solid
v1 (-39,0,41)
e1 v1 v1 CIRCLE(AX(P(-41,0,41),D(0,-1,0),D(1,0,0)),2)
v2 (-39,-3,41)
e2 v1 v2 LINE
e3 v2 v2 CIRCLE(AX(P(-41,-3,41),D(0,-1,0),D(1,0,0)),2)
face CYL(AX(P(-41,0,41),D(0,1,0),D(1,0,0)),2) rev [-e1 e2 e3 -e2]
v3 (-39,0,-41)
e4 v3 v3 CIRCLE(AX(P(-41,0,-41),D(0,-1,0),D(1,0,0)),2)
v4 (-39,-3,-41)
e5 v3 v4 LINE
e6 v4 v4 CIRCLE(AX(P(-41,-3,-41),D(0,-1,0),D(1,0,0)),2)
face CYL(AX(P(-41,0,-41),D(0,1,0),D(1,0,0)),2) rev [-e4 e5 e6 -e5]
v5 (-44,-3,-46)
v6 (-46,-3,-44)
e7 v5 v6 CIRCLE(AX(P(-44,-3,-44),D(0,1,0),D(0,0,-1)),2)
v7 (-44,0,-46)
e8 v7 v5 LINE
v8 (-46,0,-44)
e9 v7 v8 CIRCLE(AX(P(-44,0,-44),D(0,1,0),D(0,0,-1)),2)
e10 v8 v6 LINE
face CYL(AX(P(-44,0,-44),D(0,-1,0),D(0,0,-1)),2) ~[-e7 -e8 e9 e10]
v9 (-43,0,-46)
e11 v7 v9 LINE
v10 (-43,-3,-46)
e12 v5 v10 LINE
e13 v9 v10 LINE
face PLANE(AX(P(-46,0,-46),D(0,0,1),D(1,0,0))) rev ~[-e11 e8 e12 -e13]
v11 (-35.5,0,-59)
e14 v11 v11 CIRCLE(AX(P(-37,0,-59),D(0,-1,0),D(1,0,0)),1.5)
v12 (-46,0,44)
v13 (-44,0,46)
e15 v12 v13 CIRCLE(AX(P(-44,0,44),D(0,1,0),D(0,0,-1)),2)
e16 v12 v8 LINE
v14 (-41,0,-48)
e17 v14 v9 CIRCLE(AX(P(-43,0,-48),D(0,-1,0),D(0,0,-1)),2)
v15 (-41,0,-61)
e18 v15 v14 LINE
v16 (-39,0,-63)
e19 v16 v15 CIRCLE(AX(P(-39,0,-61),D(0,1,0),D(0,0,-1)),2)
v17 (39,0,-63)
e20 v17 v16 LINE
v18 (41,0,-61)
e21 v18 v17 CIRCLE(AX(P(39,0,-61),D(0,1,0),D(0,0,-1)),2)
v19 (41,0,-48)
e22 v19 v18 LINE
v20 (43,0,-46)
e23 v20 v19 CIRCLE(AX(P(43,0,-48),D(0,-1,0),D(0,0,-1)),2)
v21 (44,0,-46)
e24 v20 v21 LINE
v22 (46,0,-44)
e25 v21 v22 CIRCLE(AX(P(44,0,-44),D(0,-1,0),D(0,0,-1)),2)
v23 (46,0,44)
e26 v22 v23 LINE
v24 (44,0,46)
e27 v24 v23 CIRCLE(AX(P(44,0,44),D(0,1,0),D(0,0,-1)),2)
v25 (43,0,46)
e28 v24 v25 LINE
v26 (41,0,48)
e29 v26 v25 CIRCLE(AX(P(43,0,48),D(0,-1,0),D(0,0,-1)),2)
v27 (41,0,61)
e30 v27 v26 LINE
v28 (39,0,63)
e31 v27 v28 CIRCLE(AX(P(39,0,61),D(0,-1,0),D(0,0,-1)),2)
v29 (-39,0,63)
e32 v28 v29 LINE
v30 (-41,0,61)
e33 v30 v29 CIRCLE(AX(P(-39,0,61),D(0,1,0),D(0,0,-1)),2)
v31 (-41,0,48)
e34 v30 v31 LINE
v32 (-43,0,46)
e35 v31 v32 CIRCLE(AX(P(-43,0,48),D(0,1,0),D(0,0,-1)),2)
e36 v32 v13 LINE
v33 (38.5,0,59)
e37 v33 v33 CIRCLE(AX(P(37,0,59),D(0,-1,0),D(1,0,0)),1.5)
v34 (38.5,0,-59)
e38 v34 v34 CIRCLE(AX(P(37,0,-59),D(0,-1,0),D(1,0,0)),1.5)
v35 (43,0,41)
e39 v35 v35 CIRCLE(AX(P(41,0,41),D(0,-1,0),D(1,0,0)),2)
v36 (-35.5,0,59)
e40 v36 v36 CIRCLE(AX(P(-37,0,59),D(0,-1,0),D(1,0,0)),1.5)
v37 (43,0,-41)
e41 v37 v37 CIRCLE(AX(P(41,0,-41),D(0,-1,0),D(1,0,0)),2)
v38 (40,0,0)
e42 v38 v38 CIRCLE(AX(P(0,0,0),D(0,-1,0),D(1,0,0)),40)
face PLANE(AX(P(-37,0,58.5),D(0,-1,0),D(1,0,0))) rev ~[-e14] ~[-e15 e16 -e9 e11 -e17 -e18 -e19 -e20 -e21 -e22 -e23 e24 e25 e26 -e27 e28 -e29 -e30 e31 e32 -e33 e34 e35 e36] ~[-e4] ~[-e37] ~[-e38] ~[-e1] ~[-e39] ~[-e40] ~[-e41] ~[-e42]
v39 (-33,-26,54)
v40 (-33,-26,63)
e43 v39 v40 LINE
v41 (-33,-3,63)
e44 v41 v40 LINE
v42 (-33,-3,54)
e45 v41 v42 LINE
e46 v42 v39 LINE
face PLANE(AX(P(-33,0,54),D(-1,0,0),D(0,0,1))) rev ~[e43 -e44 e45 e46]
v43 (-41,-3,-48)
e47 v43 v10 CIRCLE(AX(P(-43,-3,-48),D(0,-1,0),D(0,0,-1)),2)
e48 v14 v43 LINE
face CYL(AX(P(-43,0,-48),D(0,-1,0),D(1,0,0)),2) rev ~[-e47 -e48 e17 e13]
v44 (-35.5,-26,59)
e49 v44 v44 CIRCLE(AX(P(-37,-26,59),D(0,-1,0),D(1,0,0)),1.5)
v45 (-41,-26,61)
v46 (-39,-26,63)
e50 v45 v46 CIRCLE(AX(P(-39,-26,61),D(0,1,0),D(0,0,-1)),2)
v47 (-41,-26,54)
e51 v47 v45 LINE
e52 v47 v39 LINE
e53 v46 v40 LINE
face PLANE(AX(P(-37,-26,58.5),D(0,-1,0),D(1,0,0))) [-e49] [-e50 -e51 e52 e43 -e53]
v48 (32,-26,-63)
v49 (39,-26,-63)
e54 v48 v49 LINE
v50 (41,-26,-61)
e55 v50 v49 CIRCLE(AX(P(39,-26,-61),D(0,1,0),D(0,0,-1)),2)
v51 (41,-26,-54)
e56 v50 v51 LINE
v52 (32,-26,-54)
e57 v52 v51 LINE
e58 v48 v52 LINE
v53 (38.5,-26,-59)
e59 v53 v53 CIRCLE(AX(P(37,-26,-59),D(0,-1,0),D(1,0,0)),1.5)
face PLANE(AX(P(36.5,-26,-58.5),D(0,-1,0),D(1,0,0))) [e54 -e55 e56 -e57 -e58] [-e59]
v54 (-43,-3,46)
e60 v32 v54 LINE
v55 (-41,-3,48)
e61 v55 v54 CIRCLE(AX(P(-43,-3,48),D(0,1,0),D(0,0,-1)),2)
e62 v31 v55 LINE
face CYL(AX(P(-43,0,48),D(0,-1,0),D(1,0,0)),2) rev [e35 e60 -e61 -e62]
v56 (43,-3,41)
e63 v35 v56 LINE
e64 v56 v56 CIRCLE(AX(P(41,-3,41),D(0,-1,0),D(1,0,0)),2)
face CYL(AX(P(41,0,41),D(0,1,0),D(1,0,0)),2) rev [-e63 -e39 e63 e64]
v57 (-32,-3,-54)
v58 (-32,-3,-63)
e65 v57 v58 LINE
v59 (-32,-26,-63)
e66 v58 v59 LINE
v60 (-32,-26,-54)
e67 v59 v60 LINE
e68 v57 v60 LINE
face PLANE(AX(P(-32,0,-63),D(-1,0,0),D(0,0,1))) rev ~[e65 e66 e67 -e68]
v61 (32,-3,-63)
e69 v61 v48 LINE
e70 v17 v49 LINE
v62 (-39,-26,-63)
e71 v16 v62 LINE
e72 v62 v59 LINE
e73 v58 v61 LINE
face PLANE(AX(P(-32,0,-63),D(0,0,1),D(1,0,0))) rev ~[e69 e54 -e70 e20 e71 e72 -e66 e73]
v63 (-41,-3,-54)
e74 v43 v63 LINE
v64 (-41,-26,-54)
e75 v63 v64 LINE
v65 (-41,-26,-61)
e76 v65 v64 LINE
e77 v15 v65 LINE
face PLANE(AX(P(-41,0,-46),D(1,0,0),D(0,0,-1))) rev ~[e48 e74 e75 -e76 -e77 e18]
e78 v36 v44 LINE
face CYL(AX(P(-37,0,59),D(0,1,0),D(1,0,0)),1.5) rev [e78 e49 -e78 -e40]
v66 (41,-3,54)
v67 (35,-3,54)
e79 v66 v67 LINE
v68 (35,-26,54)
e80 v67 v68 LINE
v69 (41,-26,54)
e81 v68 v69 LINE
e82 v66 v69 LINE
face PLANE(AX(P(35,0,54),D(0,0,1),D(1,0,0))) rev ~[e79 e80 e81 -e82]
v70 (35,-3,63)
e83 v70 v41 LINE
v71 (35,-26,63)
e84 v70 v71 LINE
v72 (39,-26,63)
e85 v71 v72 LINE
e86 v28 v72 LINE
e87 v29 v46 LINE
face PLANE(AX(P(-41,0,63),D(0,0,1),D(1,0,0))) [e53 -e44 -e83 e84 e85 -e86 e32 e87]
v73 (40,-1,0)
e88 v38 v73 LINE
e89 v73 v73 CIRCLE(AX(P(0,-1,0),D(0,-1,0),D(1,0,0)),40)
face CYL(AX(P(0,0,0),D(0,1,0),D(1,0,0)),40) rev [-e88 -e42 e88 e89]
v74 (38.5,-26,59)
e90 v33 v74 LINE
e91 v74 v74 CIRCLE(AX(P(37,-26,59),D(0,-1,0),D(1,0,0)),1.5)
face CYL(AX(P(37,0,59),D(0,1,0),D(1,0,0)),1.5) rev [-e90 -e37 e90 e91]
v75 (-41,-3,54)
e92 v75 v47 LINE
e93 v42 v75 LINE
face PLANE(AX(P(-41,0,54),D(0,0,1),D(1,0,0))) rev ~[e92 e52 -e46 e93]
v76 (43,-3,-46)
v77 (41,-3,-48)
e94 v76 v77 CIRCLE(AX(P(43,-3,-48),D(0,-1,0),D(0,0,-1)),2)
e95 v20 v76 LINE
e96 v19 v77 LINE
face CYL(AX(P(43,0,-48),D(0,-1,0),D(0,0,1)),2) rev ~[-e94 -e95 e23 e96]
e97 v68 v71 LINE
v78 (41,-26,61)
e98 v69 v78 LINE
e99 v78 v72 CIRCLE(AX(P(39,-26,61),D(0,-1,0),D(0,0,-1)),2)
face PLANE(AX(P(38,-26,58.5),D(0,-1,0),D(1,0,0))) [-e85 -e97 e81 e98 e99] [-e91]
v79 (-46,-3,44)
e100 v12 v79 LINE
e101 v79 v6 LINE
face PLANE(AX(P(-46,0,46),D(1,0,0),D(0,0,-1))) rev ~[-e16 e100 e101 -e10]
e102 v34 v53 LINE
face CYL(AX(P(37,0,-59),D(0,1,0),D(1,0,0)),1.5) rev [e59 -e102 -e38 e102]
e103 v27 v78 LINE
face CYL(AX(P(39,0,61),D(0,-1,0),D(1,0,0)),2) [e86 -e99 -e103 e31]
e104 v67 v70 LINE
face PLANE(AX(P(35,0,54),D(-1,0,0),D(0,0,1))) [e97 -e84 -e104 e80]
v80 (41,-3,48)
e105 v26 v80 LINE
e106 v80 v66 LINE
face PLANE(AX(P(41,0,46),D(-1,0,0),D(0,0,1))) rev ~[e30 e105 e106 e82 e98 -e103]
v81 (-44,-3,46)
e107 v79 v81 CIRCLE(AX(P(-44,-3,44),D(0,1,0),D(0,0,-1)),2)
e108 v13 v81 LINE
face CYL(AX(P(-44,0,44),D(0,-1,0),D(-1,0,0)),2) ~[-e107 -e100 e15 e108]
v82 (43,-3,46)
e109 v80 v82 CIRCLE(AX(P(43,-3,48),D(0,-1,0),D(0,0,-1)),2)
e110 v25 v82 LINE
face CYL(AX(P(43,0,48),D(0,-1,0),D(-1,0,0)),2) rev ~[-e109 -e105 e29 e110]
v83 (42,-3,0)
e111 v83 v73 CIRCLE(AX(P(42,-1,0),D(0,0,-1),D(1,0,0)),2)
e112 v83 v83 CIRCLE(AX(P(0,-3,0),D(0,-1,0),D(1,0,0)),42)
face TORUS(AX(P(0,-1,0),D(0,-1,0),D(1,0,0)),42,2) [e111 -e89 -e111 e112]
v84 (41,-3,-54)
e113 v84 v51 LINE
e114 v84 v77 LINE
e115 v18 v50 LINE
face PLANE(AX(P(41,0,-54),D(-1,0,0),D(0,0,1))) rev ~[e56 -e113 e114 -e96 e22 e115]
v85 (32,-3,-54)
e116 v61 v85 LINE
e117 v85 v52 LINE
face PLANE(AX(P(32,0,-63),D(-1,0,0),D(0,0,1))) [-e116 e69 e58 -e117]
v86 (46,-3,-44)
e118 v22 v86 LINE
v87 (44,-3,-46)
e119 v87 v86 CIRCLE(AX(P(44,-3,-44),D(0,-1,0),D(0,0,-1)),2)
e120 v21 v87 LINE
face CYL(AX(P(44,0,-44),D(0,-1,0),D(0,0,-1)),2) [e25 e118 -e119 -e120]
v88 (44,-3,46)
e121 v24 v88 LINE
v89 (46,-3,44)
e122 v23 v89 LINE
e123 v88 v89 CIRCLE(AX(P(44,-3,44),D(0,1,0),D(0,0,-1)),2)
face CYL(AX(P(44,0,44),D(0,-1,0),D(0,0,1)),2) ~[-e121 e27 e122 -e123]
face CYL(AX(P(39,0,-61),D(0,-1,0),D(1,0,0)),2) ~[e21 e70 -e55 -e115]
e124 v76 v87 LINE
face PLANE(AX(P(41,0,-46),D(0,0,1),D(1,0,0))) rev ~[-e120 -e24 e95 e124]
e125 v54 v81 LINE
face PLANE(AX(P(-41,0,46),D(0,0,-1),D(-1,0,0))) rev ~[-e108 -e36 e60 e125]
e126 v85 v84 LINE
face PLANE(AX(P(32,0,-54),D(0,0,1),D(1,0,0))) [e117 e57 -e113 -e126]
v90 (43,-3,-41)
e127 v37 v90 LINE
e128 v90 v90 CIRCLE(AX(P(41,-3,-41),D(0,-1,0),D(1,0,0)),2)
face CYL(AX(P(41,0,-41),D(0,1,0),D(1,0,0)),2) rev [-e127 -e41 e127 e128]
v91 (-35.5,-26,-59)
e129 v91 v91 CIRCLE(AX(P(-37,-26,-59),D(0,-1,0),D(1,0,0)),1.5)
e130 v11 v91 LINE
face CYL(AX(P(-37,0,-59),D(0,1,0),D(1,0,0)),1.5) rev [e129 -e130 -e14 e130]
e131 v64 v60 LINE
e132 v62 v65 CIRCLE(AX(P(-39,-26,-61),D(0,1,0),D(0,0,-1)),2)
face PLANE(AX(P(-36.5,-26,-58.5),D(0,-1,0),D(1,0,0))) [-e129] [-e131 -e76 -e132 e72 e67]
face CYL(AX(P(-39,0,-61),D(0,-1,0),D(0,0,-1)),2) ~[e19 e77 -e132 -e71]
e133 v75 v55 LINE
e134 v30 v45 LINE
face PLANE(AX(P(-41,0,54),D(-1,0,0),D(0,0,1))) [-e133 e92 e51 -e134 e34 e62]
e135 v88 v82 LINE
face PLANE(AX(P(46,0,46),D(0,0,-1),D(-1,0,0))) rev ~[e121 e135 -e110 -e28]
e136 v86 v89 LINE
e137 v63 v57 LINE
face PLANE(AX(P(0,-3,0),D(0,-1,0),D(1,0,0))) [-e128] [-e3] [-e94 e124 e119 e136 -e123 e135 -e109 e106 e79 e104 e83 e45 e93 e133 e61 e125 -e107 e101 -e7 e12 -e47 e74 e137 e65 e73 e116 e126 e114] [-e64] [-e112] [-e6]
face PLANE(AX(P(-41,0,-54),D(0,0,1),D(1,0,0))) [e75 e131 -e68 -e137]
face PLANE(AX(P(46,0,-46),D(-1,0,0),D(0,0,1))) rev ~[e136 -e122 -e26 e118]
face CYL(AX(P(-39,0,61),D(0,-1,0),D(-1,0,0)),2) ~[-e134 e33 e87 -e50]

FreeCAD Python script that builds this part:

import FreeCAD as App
import Part
import Sketcher

V = App.Vector


def edges_at(feature, points):
    """Names of the edges that pass closest to the given points."""
    edges = feature.Shape.Edges
    near = lambda p: min(range(len(edges)), key=lambda i: edges[i].distToShape(Part.Vertex(*p))[0])
    return sorted({f"Edge{near(p) + 1}" for p in points})


def add_polygon(sketch, points):
    """Adds a closed chain of lines whose ends are joined by coincident constraints."""
    first, n = sketch.GeometryCount, len(points)
    for a, b in zip(points, points[1:] + points[:1]):
        sketch.addGeometry(Part.LineSegment(App.Vector(*a, 0), App.Vector(*b, 0)), False)
    for i in range(n):
        sketch.addConstraint(Sketcher.Constraint("Coincident", first + i, 2, first + (i + 1) % n, 1))

doc = App.newDocument("Part")
body = doc.addObject("PartDesign::Body", "Body")

# Sketch on XZ plane
sketch1 = body.newObject("Sketcher::SketchObject", "Sketch")
sketch1.AttachmentSupport = (doc.getObject("XZ_Plane"), [""])
sketch1.MapMode = "FlatFace"
add_polygon(sketch1, [(46, -46), (46, 46), (41, 46), (41, 54), (35, 54), (35, 63), (-33, 63), (-33, 54), (-41, 54), (-41, 46), (-46, 46), (-46, -46), (-41, -46), (-41, -54), (-32, -54), (-32, -63), (32, -63), (32, -54), (41, -54), (41, -46)])  # lines 0-19
sketch1.addGeometry(Part.Circle(V(-41, -41, 0), V(0, 0, 1), 2), False)  # 20
sketch1.addGeometry(Part.Circle(V(41, -41, 0), V(0, 0, 1), 2), False)  # 21
sketch1.addGeometry(Part.Circle(V(-41, 41, 0), V(0, 0, 1), 2), False)  # 22
sketch1.addGeometry(Part.Circle(V(0, 0, 0), V(0, 0, 1), 40), False)  # 23
sketch1.addGeometry(Part.Circle(V(41, 41, 0), V(0, 0, 1), 2), False)  # 24
sketch1.addConstraint(Sketcher.Constraint("Vertical", 0))
sketch1.addConstraint(Sketcher.Constraint("Horizontal", 1))
sketch1.addConstraint(Sketcher.Constraint("Vertical", 2))
sketch1.addConstraint(Sketcher.Constraint("Horizontal", 3))
sketch1.addConstraint(Sketcher.Constraint("Vertical", 4))
sketch1.addConstraint(Sketcher.Constraint("Horizontal", 5))
sketch1.addConstraint(Sketcher.Constraint("Vertical", 6))
sketch1.addConstraint(Sketcher.Constraint("Horizontal", 7))
sketch1.addConstraint(Sketcher.Constraint("Vertical", 8))
sketch1.addConstraint(Sketcher.Constraint("Horizontal", 9))
sketch1.addConstraint(Sketcher.Constraint("Vertical", 10))
sketch1.addConstraint(Sketcher.Constraint("Horizontal", 11))
sketch1.addConstraint(Sketcher.Constraint("Vertical", 12))
sketch1.addConstraint(Sketcher.Constraint("Horizontal", 13))
sketch1.addConstraint(Sketcher.Constraint("Vertical", 14))
sketch1.addConstraint(Sketcher.Constraint("Horizontal", 15))
sketch1.addConstraint(Sketcher.Constraint("Vertical", 16))
sketch1.addConstraint(Sketcher.Constraint("Horizontal", 17))
sketch1.addConstraint(Sketcher.Constraint("Vertical", 18))
sketch1.addConstraint(Sketcher.Constraint("Horizontal", 19))
sketch1.addConstraint(Sketcher.Constraint("Coincident", 23, 3, -1, 1))
sketch1.addConstraint(Sketcher.Constraint("Equal", 20, 21))
sketch1.addConstraint(Sketcher.Constraint("Equal", 21, 22))
sketch1.addConstraint(Sketcher.Constraint("Equal", 22, 24))
sketch1.addConstraint(Sketcher.Constraint("Symmetric", 21, 3, 22, 3, -1, 1))
sketch1.addConstraint(Sketcher.Constraint("Symmetric", 20, 3, 24, 3, -1, 1))
sketch1.addConstraint(Sketcher.Constraint("Symmetric", 0, 2, 10, 2, -1, 1))
sketch1.addConstraint(Sketcher.Constraint("Symmetric", 2, 2, 12, 2, -1, 1))
sketch1.addConstraint(Sketcher.Constraint("Symmetric", 7, 2, 17, 2, -1, 1))
sketch1.addConstraint(Sketcher.Constraint("Symmetric", 20, 3, 21, 3, -2))
sketch1.addConstraint(Sketcher.Constraint("Symmetric", 2, 2, 7, 2, -2))
sketch1.addConstraint(Sketcher.Constraint("Horizontal", 1, 2, 8, 2))
sketch1.addConstraint(Sketcher.Constraint("Horizontal", 11, 2, 18, 2))
sketch1.addConstraint(Sketcher.Constraint("Vertical", 24, 3, 1, 2))
sketch1.addConstraint(Sketcher.Constraint("Equal", 13, 17))
sketch1.addConstraint(Sketcher.Constraint("Equal", 7, 2))
sketch1.addConstraint(Sketcher.Constraint("Equal", 17, 4))
sketch1.addConstraint(Sketcher.Constraint("Equal", 6, 14))
sketch1.addConstraint(Sketcher.Constraint("Diameter", 20, 4.0))
sketch1.addConstraint(Sketcher.Constraint("Diameter", 23, 80.0))
sketch1.addConstraint(Sketcher.Constraint("DistanceX", 1, 2, 1, 1, 5.0))
sketch1.addConstraint(Sketcher.Constraint("DistanceX", 3, 2, 3, 1, 6.0))
sketch1.addConstraint(Sketcher.Constraint("DistanceX", 5, 2, 5, 1, 68.0))
sketch1.addConstraint(Sketcher.Constraint("DistanceX", 7, 2, 7, 1, 8.0))
sketch1.addConstraint(Sketcher.Constraint("DistanceX", 13, 1, 13, 2, 9.0))
sketch1.addConstraint(Sketcher.Constraint("DistanceY", 0, 1, 0, 2, 92.0))
sketch1.addConstraint(Sketcher.Constraint("DistanceY", 20, 3, -1, 1, 41.0))
pad1 = body.newObject("PartDesign::Pad", "Pad")
pad1.Profile = sketch1
pad1.Length = 3

# Sketch on XZ plane
sketch2 = body.newObject("Sketcher::SketchObject", "Sketch001")
sketch2.AttachmentSupport = (doc.getObject("XZ_Plane"), [""])
sketch2.MapMode = "FlatFace"
add_polygon(sketch2, [(-41, 63), (-41, 54), (-33, 54), (-33, 63)])  # lines 0-3
sketch2.addGeometry(Part.Circle(V(-37, 59, 0), V(0, 0, 1), 1.5), False)  # 4
add_polygon(sketch2, [(35, 63), (35, 54), (41, 54), (41, 63)])  # lines 5-8
sketch2.addGeometry(Part.Circle(V(37, 59, 0), V(0, 0, 1), 1.5), False)  # 9
add_polygon(sketch2, [(32, -54), (32, -63), (41, -63), (41, -54)])  # lines 10-13
sketch2.addGeometry(Part.Circle(V(37, -59, 0), V(0, 0, 1), 1.5), False)  # 14
add_polygon(sketch2, [(-41, -54), (-41, -63), (-32, -63), (-32, -54)])  # lines 15-18
sketch2.addGeometry(Part.Circle(V(-37, -59, 0), V(0, 0, 1), 1.5), False)  # 19
sketch2.addConstraint(Sketcher.Constraint("Vertical", 0))
sketch2.addConstraint(Sketcher.Constraint("Horizontal", 1))
sketch2.addConstraint(Sketcher.Constraint("Vertical", 2))
sketch2.addConstraint(Sketcher.Constraint("Horizontal", 3))
sketch2.addConstraint(Sketcher.Constraint("Vertical", 5))
sketch2.addConstraint(Sketcher.Constraint("Horizontal", 6))
sketch2.addConstraint(Sketcher.Constraint("Vertical", 7))
sketch2.addConstraint(Sketcher.Constraint("Horizontal", 8))
sketch2.addConstraint(Sketcher.Constraint("Vertical", 10))
sketch2.addConstraint(Sketcher.Constraint("Horizontal", 11))
sketch2.addConstraint(Sketcher.Constraint("Vertical", 12))
sketch2.addConstraint(Sketcher.Constraint("Horizontal", 13))
sketch2.addConstraint(Sketcher.Constraint("Vertical", 15))
sketch2.addConstraint(Sketcher.Constraint("Horizontal", 16))
sketch2.addConstraint(Sketcher.Constraint("Vertical", 17))
sketch2.addConstraint(Sketcher.Constraint("Horizontal", 18))
sketch2.addConstraint(Sketcher.Constraint("Equal", 4, 9))
sketch2.addConstraint(Sketcher.Constraint("Equal", 9, 14))
sketch2.addConstraint(Sketcher.Constraint("Equal", 14, 19))
sketch2.addConstraint(Sketcher.Constraint("Symmetric", 4, 3, 14, 3, -1, 1))
sketch2.addConstraint(Sketcher.Constraint("Symmetric", 9, 3, 19, 3, -1, 1))
sketch2.addConstraint(Sketcher.Constraint("Symmetric", 3, 2, 11, 2, -1, 1))
sketch2.addConstraint(Sketcher.Constraint("Symmetric", 7, 2, 15, 2, -1, 1))
sketch2.addConstraint(Sketcher.Constraint("Symmetric", 4, 3, 9, 3, -2))
sketch2.addConstraint(Sketcher.Constraint("Symmetric", 0, 2, 6, 2, -2))
sketch2.addConstraint(Sketcher.Constraint("Symmetric", 10, 2, 16, 2, -2))
sketch2.addConstraint(Sketcher.Constraint("Horizontal", 13, 2, 17, 2))
sketch2.addConstraint(Sketcher.Constraint("Equal", 18, 0))
sketch2.addConstraint(Sketcher.Constraint("Equal", 7, 10))
sketch2.addConstraint(Sketcher.Constraint("Diameter", 4, 3.0))
sketch2.addConstraint(Sketcher.Constraint("DistanceX", 1, 1, 1, 2, 8.0))
sketch2.addConstraint(Sketcher.Constraint("DistanceX", 6, 1, 6, 2, 6.0))
sketch2.addConstraint(Sketcher.Constraint("DistanceX", 11, 1, 11, 2, 9.0))
sketch2.addConstraint(Sketcher.Constraint("DistanceX", 4, 3, -1, 1, 37.0))
sketch2.addConstraint(Sketcher.Constraint("DistanceY", -1, 1, 4, 3, 59.0))
sketch2.addConstraint(Sketcher.Constraint("DistanceX", 0, 2, -1, 1, 41.0))
sketch2.addConstraint(Sketcher.Constraint("DistanceY", -1, 1, 0, 2, 54.0))
pad2 = body.newObject("PartDesign::Pad", "Pad001")
pad2.Profile = sketch2
pad2.Length = 26
doc.recompute()

fillet = body.newObject("PartDesign::Fillet", "Fillet")
fillet.Base = (pad2, edges_at(pad2, [
    (-40, -3, 0),
    (-46, -1.5, -46),
    (-46, -1.5, 46),
    (46, -1.5, -46),
    (41, -1.5, -46),
    (-41, -1.5, -46),
    (-41, -13, -63),
    (41, -13, -63),
    (46, -1.5, 46),
    (41, -1.5, 46),
    (41, -13, 63),
    (-41, -13, 63),
    (-41, -1.5, 46),
]))
fillet.Radius = 2

doc.recompute()
